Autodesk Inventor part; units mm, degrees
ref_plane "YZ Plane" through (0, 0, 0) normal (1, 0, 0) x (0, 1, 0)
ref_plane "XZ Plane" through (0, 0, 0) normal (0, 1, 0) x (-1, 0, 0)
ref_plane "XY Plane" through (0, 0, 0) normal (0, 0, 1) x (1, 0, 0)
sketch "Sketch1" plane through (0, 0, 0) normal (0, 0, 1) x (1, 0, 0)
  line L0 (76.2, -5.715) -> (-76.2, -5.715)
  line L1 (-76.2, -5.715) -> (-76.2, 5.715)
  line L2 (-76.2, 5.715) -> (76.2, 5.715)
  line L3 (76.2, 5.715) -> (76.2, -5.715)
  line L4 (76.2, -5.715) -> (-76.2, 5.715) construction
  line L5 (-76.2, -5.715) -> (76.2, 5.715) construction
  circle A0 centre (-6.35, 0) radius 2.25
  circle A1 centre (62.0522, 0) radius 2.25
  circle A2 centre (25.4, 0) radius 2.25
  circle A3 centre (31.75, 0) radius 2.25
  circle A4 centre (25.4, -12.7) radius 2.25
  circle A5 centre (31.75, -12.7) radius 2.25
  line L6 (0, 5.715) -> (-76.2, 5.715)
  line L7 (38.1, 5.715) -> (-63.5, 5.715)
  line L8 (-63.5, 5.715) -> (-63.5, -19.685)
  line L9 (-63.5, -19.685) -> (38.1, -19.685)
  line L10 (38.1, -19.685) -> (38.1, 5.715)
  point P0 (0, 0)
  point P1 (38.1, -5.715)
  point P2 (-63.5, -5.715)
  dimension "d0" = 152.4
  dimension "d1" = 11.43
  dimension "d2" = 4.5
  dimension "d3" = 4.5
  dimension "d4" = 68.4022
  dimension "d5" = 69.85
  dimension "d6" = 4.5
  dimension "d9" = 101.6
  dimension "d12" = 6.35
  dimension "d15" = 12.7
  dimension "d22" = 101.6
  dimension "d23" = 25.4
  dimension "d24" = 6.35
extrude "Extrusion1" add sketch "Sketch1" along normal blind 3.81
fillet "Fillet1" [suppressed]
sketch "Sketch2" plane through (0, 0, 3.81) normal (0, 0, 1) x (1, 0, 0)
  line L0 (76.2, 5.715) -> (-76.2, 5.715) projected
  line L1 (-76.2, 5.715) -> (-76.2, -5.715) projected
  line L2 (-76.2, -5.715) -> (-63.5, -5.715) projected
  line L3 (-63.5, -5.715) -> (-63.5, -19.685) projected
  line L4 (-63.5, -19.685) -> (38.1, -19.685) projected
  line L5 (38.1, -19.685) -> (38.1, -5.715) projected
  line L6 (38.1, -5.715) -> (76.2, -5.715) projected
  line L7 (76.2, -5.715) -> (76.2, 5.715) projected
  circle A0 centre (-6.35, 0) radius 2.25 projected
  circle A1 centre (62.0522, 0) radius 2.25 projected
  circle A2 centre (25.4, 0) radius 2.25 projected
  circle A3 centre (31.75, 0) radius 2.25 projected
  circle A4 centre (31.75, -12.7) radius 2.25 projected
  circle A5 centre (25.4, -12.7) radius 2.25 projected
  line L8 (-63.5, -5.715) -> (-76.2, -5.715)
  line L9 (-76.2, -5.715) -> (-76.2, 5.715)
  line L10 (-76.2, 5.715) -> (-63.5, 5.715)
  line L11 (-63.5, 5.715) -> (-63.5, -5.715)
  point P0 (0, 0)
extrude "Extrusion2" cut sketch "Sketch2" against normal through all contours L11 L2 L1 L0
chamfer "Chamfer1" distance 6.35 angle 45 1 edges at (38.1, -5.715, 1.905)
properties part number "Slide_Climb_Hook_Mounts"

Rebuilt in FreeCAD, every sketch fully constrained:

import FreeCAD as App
import Part
import Sketcher

V = App.Vector
Q = App.Units.Quantity


def edges_at(feature, points):
    """Names of the edges that pass closest to the given points."""
    edges = feature.Shape.Edges
    near = lambda p: min(range(len(edges)), key=lambda i: edges[i].distToShape(Part.Vertex(*p))[0])
    return sorted({f"Edge{near(p) + 1}" for p in points})


def add_polygon(sketch, points):
    """Adds a closed chain of lines whose ends are joined by coincident constraints."""
    first, n = sketch.GeometryCount, len(points)
    for a, b in zip(points, points[1:] + points[:1]):
        sketch.addGeometry(Part.LineSegment(App.Vector(*a, 0), App.Vector(*b, 0)), False)
    for i in range(n):
        sketch.addConstraint(Sketcher.Constraint("Coincident", first + i, 2, first + (i + 1) % n, 1))

doc = App.newDocument("Part")
body = doc.addObject("PartDesign::Body", "Body")

# Sketch on XY plane
sketch1 = body.newObject("Sketcher::SketchObject", "Sketch")
sketch1.AttachmentSupport = (doc.getObject("XY_Plane"), [""])
sketch1.MapMode = "FlatFace"
add_polygon(sketch1, [(38.1, -5.7), (76.2, -5.7), (76.2, 5.7), (-76.2, 5.7), (-76.2, -5.7), (-63.5, -5.7), (-63.5, -19.7), (38.1, -19.7)])  # lines 0-7
sketch1.addGeometry(Part.Circle(V(62.1, 0, 0), V(0, 0, 1), 2.2), False)  # 8
sketch1.addGeometry(Part.Circle(V(31.8, 0, 0), V(0, 0, 1), 2.2), False)  # 9
sketch1.addGeometry(Part.Circle(V(-6.3, 0, 0), V(0, 0, 1), 2.2), False)  # 10
sketch1.addGeometry(Part.Circle(V(25.4, 0, 0), V(0, 0, 1), 2.2), False)  # 11
sketch1.addGeometry(Part.Circle(V(31.8, -12.7, 0), V(0, 0, 1), 2.2), False)  # 12
sketch1.addGeometry(Part.Circle(V(25.4, -12.7, 0), V(0, 0, 1), 2.2), False)  # 13
sketch1.addConstraint([
    Sketcher.Constraint("Horizontal", 0),
    Sketcher.Constraint("Vertical", 1),
    Sketcher.Constraint("Horizontal", 2),
    Sketcher.Constraint("Vertical", 3),
    Sketcher.Constraint("Horizontal", 4),
    Sketcher.Constraint("Vertical", 5),
    Sketcher.Constraint("Horizontal", 6),
    Sketcher.Constraint("Vertical", 7),
    Sketcher.Constraint("Equal", 8, 9),
    Sketcher.Constraint("Equal", 9, 10),
    Sketcher.Constraint("Equal", 10, 11),
    Sketcher.Constraint("Equal", 11, 12),
    Sketcher.Constraint("Equal", 12, 13),
    Sketcher.Constraint("Symmetric", 0, 2, 2, 2, -1, 1),
    Sketcher.Constraint("PointOnObject", 8, 3, -1),
    Sketcher.Constraint("PointOnObject", 9, 3, -1),
    Sketcher.Constraint("PointOnObject", 10, 3, -1),
    Sketcher.Constraint("PointOnObject", 11, 3, -1),
    Sketcher.Constraint("Horizontal", 12, 3, 13, 3),
    Sketcher.Constraint("Horizontal", 0, 2, 3, 2),
    Sketcher.Constraint("Vertical", 9, 3, 12, 3),
    Sketcher.Constraint("Vertical", 11, 3, 13, 3),
    Sketcher.Constraint("DistanceX", 2, 2, 2, 1, Q("6 in")),
    Sketcher.Constraint("DistanceX", 6, 1, 6, 2, Q("4 in")),
    Sketcher.Constraint("DistanceX", 4, 1, 4, 2, Q("0.5 in")),
    Sketcher.Constraint("DistanceX", -1, 1, 11, 3, Q("1 in")),
    Sketcher.Constraint("DistanceY", 5, 2, 2, 2, Q("1 in")),
    Sketcher.Constraint("DistanceY", 1, 1, 1, 2, Q("0.45 in")),
    Sketcher.Constraint("DistanceY", 12, 3, -1, 1, Q("0.5 in")),
    Sketcher.Constraint("Diameter", 8, Q("4.5 mm")),
    Sketcher.Constraint("DistanceX", 10, 3, -1, 1, Q("0.25 in")),
    Sketcher.Constraint("DistanceX", 11, 3, 9, 3, Q("0.25 in")),
    Sketcher.Constraint("DistanceX", 10, 3, 8, 3, Q("2.693 in")),
])
pad1 = body.newObject("PartDesign::Pad", "Pad")
pad1.Profile = sketch1
pad1.Length = Q("0.15 in")

# Sketch on XY plane
sketch2 = body.newObject("Sketcher::SketchObject", "Sketch001")
sketch2.AttachmentSupport = (doc.getObject("XY_Plane"), [""])
sketch2.MapMode = "FlatFace"
sketch2.AttachmentOffset = App.Placement(V(0, 0, 0.15 * 25.4), App.Rotation())
add_polygon(sketch2, [(-64, -6), (-64, 6), (-76, 6), (-76, -6)])  # lines 0-3
sketch2.addConstraint([
    Sketcher.Constraint("Vertical", 0),
    Sketcher.Constraint("Horizontal", 1),
    Sketcher.Constraint("Vertical", 2),
    Sketcher.Constraint("Horizontal", 3),
    Sketcher.Constraint("DistanceX", 1, 2, 1, 1, Q("0.5 in")),
    Sketcher.Constraint("DistanceX", 1, 2, -1, 1, Q("3 in")),
    Sketcher.Constraint("DistanceY", 0, 1, 0, 2, Q("0.45 in")),
    Sketcher.Constraint("DistanceY", -1, 1, 0, 2, Q("0.225 in")),
])
pocket1 = body.newObject("PartDesign::Pocket", "Pocket")
pocket1.Profile = sketch2
pocket1.Type = "ThroughAll"
doc.recompute()

chamfer = body.newObject("PartDesign::Chamfer", "Chamfer")
chamfer.Base = (pocket1, edges_at(pocket1, [(38.1, -5.715, 1.905)]))
chamfer.Size = Q("0.25 in")

doc.recompute()
